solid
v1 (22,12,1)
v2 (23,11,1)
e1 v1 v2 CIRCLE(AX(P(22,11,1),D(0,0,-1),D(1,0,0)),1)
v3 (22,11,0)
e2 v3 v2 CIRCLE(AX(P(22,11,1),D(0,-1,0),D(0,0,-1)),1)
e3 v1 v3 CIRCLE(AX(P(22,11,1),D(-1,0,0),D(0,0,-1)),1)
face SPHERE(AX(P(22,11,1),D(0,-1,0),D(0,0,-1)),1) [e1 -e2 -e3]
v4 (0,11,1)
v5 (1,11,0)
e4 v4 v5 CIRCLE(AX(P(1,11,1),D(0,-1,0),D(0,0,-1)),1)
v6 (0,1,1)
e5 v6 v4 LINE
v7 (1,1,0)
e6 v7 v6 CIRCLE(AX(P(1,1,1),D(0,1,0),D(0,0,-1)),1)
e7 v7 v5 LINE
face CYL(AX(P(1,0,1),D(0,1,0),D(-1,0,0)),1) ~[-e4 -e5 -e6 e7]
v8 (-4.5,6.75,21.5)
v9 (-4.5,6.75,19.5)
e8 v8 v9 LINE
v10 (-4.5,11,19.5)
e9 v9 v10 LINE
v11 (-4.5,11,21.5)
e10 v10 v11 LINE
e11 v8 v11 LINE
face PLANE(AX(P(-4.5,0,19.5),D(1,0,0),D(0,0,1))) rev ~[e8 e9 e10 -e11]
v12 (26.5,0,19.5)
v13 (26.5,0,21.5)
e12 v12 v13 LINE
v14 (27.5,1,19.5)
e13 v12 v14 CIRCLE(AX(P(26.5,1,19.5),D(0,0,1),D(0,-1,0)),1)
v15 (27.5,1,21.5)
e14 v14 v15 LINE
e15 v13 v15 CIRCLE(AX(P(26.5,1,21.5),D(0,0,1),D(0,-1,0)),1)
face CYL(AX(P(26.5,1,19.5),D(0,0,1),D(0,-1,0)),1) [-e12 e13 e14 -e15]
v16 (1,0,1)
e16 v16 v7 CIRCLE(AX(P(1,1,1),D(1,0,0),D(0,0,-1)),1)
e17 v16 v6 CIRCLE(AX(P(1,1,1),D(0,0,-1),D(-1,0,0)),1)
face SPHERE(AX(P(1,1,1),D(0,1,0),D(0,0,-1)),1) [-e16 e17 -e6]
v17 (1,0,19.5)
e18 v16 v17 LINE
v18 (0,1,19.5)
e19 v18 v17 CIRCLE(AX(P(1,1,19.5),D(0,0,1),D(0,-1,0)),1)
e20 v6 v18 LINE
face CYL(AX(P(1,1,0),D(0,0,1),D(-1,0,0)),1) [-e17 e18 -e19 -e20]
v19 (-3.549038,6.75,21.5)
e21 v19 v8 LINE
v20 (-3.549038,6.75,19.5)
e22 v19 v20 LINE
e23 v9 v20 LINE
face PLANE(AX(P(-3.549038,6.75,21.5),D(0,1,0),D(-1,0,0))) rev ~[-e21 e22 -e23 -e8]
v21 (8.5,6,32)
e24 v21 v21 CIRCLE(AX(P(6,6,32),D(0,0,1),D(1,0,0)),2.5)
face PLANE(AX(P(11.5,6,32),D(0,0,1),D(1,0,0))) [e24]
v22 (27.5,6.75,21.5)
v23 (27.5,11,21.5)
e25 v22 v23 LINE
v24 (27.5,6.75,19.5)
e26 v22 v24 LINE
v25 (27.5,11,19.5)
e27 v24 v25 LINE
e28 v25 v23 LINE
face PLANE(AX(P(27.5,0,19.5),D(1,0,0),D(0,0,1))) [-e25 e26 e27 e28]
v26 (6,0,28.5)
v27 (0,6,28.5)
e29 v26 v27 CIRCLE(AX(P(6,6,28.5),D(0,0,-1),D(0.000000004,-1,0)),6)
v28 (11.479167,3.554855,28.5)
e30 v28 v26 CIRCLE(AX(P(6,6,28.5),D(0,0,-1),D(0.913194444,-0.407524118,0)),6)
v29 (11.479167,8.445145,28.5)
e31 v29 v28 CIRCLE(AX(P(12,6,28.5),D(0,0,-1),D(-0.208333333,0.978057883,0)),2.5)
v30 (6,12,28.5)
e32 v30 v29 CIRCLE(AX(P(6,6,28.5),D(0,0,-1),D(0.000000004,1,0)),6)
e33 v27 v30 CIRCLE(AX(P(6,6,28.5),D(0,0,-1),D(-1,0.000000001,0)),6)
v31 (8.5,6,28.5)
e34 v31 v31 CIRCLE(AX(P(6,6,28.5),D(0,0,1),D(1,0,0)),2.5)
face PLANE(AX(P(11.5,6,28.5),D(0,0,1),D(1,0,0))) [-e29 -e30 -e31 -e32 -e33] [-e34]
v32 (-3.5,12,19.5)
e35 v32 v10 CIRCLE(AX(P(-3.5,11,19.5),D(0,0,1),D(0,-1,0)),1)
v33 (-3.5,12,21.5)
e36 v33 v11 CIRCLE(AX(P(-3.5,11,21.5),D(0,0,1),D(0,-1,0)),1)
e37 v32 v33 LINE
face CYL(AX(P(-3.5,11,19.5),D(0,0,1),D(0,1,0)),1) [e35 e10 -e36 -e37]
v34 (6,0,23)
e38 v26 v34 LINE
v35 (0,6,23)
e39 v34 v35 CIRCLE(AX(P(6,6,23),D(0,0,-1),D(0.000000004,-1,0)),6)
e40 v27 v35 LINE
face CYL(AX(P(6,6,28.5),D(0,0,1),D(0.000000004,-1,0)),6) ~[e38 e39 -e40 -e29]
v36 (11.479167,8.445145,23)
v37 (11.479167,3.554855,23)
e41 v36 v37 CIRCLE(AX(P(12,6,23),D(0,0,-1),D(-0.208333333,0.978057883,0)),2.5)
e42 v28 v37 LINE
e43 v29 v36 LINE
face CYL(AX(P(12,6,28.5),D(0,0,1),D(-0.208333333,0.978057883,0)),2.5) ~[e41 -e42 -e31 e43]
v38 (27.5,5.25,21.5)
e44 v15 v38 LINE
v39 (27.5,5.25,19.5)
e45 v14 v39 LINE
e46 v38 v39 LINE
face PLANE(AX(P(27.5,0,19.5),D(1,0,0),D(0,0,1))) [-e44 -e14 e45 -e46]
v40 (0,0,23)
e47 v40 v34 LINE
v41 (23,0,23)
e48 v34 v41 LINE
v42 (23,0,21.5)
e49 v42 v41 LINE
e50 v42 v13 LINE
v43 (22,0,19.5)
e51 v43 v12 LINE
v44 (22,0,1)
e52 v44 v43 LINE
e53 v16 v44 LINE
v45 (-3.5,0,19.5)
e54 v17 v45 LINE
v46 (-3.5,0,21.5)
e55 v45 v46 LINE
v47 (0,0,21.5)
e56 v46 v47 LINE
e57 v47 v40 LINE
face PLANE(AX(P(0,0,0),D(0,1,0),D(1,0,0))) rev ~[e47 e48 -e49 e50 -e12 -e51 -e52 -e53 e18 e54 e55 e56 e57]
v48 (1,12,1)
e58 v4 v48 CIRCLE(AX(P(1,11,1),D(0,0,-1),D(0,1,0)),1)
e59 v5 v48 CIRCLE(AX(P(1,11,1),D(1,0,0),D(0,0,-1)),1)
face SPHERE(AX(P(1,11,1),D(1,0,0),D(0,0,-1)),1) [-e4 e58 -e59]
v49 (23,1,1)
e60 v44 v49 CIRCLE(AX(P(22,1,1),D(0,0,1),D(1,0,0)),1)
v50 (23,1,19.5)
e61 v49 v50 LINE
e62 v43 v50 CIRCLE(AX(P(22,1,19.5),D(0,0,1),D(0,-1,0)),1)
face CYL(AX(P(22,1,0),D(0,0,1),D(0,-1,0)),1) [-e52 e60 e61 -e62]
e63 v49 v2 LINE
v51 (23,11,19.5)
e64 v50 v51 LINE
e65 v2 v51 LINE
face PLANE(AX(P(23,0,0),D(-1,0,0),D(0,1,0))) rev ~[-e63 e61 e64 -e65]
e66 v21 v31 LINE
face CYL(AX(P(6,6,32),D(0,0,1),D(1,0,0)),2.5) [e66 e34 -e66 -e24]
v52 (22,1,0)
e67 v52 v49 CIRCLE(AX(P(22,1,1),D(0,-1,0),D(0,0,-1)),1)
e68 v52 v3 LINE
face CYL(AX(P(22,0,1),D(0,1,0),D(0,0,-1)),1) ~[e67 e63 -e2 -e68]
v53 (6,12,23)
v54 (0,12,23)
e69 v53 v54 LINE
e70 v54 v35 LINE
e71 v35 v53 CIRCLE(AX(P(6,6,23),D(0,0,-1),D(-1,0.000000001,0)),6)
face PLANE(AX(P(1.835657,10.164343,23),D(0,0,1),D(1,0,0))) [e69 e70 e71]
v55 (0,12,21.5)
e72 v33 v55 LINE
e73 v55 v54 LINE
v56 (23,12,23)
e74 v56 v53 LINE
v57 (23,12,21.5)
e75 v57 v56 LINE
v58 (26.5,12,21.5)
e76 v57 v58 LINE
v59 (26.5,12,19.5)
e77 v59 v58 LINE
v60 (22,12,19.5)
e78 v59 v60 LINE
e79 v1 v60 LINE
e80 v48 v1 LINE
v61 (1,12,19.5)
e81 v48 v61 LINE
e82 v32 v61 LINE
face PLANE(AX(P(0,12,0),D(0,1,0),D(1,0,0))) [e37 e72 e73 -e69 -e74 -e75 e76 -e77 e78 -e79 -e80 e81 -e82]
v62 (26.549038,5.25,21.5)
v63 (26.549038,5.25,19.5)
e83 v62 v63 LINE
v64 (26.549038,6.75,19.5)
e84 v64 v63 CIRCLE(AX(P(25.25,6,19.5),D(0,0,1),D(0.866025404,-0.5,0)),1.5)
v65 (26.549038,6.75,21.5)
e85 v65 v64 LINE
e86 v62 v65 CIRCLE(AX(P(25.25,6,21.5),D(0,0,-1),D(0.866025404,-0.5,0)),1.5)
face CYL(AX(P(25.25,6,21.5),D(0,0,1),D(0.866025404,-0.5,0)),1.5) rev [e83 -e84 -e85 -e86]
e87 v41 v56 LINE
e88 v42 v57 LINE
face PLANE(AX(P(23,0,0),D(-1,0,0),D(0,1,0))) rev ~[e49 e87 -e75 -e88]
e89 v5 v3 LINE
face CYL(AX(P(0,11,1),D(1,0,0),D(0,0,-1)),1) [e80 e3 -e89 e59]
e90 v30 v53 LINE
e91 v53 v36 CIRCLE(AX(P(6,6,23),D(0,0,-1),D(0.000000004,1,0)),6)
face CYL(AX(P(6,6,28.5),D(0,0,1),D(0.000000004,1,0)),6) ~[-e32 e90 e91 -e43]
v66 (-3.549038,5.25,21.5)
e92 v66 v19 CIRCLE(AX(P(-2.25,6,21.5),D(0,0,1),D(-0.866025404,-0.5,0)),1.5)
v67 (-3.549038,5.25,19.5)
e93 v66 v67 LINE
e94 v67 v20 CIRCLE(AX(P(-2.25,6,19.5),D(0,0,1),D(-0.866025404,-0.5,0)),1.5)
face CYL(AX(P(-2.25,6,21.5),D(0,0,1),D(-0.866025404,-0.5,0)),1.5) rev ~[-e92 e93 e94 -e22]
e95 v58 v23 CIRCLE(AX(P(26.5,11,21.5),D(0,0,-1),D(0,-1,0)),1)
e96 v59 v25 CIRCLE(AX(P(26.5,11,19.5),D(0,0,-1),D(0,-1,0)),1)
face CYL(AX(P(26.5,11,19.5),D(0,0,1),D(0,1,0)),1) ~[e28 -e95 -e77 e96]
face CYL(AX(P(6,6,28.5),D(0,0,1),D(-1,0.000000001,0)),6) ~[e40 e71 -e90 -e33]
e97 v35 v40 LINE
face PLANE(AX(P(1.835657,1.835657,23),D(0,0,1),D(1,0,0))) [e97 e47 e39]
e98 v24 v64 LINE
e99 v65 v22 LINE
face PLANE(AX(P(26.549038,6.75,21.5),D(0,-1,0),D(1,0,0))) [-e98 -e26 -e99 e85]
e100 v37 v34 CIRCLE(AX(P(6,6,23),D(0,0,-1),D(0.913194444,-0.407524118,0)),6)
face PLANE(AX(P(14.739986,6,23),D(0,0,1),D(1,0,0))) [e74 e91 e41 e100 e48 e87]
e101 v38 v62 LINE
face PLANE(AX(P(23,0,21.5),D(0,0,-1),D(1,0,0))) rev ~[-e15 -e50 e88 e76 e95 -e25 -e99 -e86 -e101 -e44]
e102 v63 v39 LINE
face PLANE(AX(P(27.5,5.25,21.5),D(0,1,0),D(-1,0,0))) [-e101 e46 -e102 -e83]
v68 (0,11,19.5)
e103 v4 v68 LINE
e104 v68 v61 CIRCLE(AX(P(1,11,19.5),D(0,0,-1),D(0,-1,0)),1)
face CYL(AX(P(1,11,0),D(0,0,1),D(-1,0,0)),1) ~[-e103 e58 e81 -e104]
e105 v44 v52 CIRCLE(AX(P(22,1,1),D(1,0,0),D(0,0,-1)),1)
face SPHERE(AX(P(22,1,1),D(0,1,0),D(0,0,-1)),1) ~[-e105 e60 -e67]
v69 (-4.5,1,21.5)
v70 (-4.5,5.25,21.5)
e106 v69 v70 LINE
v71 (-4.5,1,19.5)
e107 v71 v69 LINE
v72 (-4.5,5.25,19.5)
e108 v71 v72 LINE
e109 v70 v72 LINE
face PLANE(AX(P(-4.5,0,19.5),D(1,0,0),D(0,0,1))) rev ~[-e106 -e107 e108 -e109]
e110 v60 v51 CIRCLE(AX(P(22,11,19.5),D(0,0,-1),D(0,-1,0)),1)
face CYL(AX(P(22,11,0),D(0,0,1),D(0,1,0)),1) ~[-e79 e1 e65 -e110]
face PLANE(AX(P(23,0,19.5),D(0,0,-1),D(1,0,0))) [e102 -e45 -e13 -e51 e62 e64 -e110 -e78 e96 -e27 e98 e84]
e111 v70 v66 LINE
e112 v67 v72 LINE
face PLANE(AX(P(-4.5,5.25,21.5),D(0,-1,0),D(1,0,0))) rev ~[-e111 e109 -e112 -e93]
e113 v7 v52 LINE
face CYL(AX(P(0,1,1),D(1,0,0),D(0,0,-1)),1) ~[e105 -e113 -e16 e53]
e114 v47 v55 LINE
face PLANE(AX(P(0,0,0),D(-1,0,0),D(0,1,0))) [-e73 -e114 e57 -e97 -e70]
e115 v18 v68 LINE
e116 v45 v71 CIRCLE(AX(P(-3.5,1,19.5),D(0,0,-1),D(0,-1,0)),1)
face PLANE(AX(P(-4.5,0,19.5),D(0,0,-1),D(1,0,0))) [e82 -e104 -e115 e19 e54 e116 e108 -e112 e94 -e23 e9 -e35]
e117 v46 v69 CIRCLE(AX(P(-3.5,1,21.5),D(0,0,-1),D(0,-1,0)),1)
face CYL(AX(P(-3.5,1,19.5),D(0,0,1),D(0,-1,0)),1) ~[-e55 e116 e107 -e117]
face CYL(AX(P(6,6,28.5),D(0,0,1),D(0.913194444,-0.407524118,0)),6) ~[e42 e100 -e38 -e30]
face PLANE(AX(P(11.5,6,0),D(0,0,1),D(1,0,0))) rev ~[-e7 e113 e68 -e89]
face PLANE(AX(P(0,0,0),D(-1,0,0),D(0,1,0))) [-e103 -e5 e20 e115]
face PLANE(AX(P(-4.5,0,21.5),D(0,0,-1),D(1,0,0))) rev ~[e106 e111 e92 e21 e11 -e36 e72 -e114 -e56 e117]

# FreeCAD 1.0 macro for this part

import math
import FreeCAD as App
import Part
import Sketcher
Q = App.Units.Quantity


def edges_at(feature, points):
    """Names of the edges that pass closest to the given points."""
    edges = feature.Shape.Edges
    near = lambda p: min(range(len(edges)), key=lambda i: edges[i].distToShape(Part.Vertex(*p))[0])
    return sorted({f"Edge{near(p) + 1}" for p in points})


def add_polygon(sketch, points):
    """Adds a closed chain of lines whose ends are joined by coincident constraints."""
    first, n = sketch.GeometryCount, len(points)
    for a, b in zip(points, points[1:] + points[:1]):
        sketch.addGeometry(Part.LineSegment(App.Vector(*a, 0), App.Vector(*b, 0)), False)
    for i in range(n):
        sketch.addConstraint(Sketcher.Constraint("Coincident", first + i, 2, first + (i + 1) % n, 1))

doc = App.newDocument("Part")
body = doc.addObject("PartDesign::Body", "Body")

# Sketch on XY plane
sketch1 = body.newObject("Sketcher::SketchObject", "Sketch")
sketch1.AttachmentSupport = (doc.getObject("XY_Plane"), [""])
sketch1.MapMode = "FlatFace"
add_polygon(sketch1, [(0, 12), (0, 0), (23, 0), (23, 12)])  # lines 0-3
sketch1.addConstraint(Sketcher.Constraint("Vertical", 0))
sketch1.addConstraint(Sketcher.Constraint("Horizontal", 1))
sketch1.addConstraint(Sketcher.Constraint("Vertical", 2))
sketch1.addConstraint(Sketcher.Constraint("Horizontal", 3))
sketch1.addConstraint(Sketcher.Constraint("Coincident", 0, 2, -1, 1))
sketch1.addConstraint(Sketcher.Constraint("DistanceX", 1, 1, 1, 2, Q("23 mm")))
sketch1.addConstraint(Sketcher.Constraint("DistanceY", 0, 2, 0, 1, Q("12 mm")))
pad1 = body.newObject("PartDesign::Pad", "Pad")
pad1.Profile = sketch1
pad1.Length = 32

# Sketch on XZ plane
sketch2 = body.newObject("Sketcher::SketchObject", "Sketch001")
sketch2.AttachmentSupport = (doc.getObject("XZ_Plane"), [""])
sketch2.MapMode = "FlatFace"
add_polygon(sketch2, [(-4.5, 21.5), (-4.5, 19.5), (0, 19.5), (0, 21.5)])  # lines 0-3
add_polygon(sketch2, [(23, 21.5), (23, 19.5), (27.5, 19.5), (27.5, 21.5)])  # lines 4-7
sketch2.addConstraint(Sketcher.Constraint("Vertical", 0))
sketch2.addConstraint(Sketcher.Constraint("Horizontal", 1))
sketch2.addConstraint(Sketcher.Constraint("Vertical", 2))
sketch2.addConstraint(Sketcher.Constraint("Horizontal", 3))
sketch2.addConstraint(Sketcher.Constraint("Vertical", 4))
sketch2.addConstraint(Sketcher.Constraint("Horizontal", 5))
sketch2.addConstraint(Sketcher.Constraint("Vertical", 6))
sketch2.addConstraint(Sketcher.Constraint("Horizontal", 7))
sketch2.addConstraint(Sketcher.Constraint("PointOnObject", 1, 2, -2))
sketch2.addConstraint(Sketcher.Constraint("Horizontal", 1, 2, 4, 2))
sketch2.addConstraint(Sketcher.Constraint("Horizontal", 3, 2, 6, 2))
sketch2.addConstraint(Sketcher.Constraint("Equal", 3, 5))
sketch2.addConstraint(Sketcher.Constraint("DistanceY", 0, 2, 0, 1, Q("2 mm")))
sketch2.addConstraint(Sketcher.Constraint("DistanceX", 1, 1, 1, 2, Q("4.5 mm")))
sketch2.addConstraint(Sketcher.Constraint("DistanceX", -1, 1, 4, 2, Q("23 mm")))
sketch2.addConstraint(Sketcher.Constraint("DistanceY", -1, 1, 0, 2, Q("19.5 mm")))
pad2 = body.newObject("PartDesign::Pad", "Pad001")
pad2.Profile = sketch2
pad2.Length = 12
pad2.Reversed = True

# Sketch on XY plane
sketch3 = body.newObject("Sketcher::SketchObject", "Sketch002")
sketch3.AttachmentSupport = (doc.getObject("XY_Plane"), [""])
sketch3.MapMode = "FlatFace"
sketch3.AttachmentOffset = App.Placement(App.Vector(0, 0, 21.5), App.Rotation())
sketch3.addGeometry(Part.LineSegment(App.Vector(-3.549038, 6.75, 0), App.Vector(-4.5, 6.75, 0)), False)
sketch3.addGeometry(Part.LineSegment(App.Vector(-4.5, 6.75, 0), App.Vector(-4.5, 5.25, 0)), False)
sketch3.addGeometry(Part.LineSegment(App.Vector(-4.5, 5.25, 0), App.Vector(-3.549038, 5.25, 0)), False)
sketch3.addGeometry(Part.ArcOfCircle(Part.Circle(App.Vector(-2.25, 6, 0), App.Vector(0, 0, 1), 1.5), math.radians(-150), math.radians(150)), False)
sketch3.addGeometry(Part.LineSegment(App.Vector(27.5, 6.75, 0), App.Vector(26.549038, 6.75, 0)), False)
sketch3.addGeometry(Part.ArcOfCircle(Part.Circle(App.Vector(25.25, 6, 0), App.Vector(0, 0, 1), 1.5), math.radians(30), math.radians(330)), False)
sketch3.addGeometry(Part.LineSegment(App.Vector(26.549038, 5.25, 0), App.Vector(27.5, 5.25, 0)), False)
sketch3.addGeometry(Part.LineSegment(App.Vector(27.5, 5.25, 0), App.Vector(27.5, 6.75, 0)), False)
sketch3.addConstraint(Sketcher.Constraint("Coincident", 0, 2, 1, 1))
sketch3.addConstraint(Sketcher.Constraint("Coincident", 1, 2, 2, 1))
sketch3.addConstraint(Sketcher.Constraint("Coincident", 2, 2, 3, 1))
sketch3.addConstraint(Sketcher.Constraint("Coincident", 3, 2, 0, 1))
sketch3.addConstraint(Sketcher.Constraint("Coincident", 4, 2, 5, 1))
sketch3.addConstraint(Sketcher.Constraint("Coincident", 5, 2, 6, 1))
sketch3.addConstraint(Sketcher.Constraint("Coincident", 6, 2, 7, 1))
sketch3.addConstraint(Sketcher.Constraint("Coincident", 7, 2, 4, 1))
sketch3.addConstraint(Sketcher.Constraint("Horizontal", 0))
sketch3.addConstraint(Sketcher.Constraint("Vertical", 1))
sketch3.addConstraint(Sketcher.Constraint("Horizontal", 2))
sketch3.addConstraint(Sketcher.Constraint("Horizontal", 4))
sketch3.addConstraint(Sketcher.Constraint("Horizontal", 6))
sketch3.addConstraint(Sketcher.Constraint("Vertical", 7))
sketch3.addConstraint(Sketcher.Constraint("Equal", 3, 5))
sketch3.addConstraint(Sketcher.Constraint("Horizontal", 3, 3, 5, 3))
sketch3.addConstraint(Sketcher.Constraint("Horizontal", 3, 2, 4, 2))
sketch3.addConstraint(Sketcher.Constraint("Horizontal", 2, 2, 5, 2))
sketch3.addConstraint(Sketcher.Constraint("Vertical", 2, 2, 3, 2))
sketch3.addConstraint(Sketcher.Constraint("Equal", 2, 4))
sketch3.addConstraint(Sketcher.Constraint("Radius", 3, Q("1.5 mm")))
sketch3.addConstraint(Sketcher.Constraint("DistanceY", 1, 2, 1, 1, Q("1.5 mm")))
sketch3.addConstraint(Sketcher.Constraint("DistanceY", -1, 1, 3, 3, Q("6 mm")))
sketch3.addConstraint(Sketcher.Constraint("DistanceX", 0, 2, -1, 1, Q("4.5 mm")))
sketch3.addConstraint(Sketcher.Constraint("DistanceX", -1, 1, 6, 2, Q("27.5 mm")))
sketch3.addConstraint(Sketcher.Constraint("DistanceX", 3, 3, 5, 3, Q("27.5 mm")))
pocket1 = body.newObject("PartDesign::Pocket", "Pocket")
pocket1.Profile = sketch3
pocket1.Type = "ThroughAll"

# Sketch on XY plane
sketch4 = body.newObject("Sketcher::SketchObject", "Sketch003")
sketch4.AttachmentSupport = (doc.getObject("XY_Plane"), [""])
sketch4.MapMode = "FlatFace"
sketch4.AttachmentOffset = App.Placement(App.Vector(0, 0, 32), App.Rotation())
add_polygon(sketch4, [(0, 12), (0, 0), (23, 0), (23, 12)])  # lines 0-3
sketch4.addGeometry(Part.Circle(App.Vector(6, 6, 0), App.Vector(0, 0, 1), 2.5), False)  # 4
sketch4.addConstraint(Sketcher.Constraint("Vertical", 0))
sketch4.addConstraint(Sketcher.Constraint("Horizontal", 1))
sketch4.addConstraint(Sketcher.Constraint("Vertical", 2))
sketch4.addConstraint(Sketcher.Constraint("Horizontal", 3))
sketch4.addConstraint(Sketcher.Constraint("Coincident", 0, 2, -1, 1))
sketch4.addConstraint(Sketcher.Constraint("Diameter", 4, Q("5 mm")))
sketch4.addConstraint(Sketcher.Constraint("DistanceX", 1, 1, 1, 2, Q("23 mm")))
sketch4.addConstraint(Sketcher.Constraint("DistanceY", 0, 2, 0, 1, Q("12 mm")))
sketch4.addConstraint(Sketcher.Constraint("DistanceX", -1, 1, 4, 3, Q("6 mm")))
sketch4.addConstraint(Sketcher.Constraint("DistanceY", -1, 1, 4, 3, Q("6 mm")))
pocket2 = body.newObject("PartDesign::Pocket", "Pocket001")
pocket2.Profile = sketch4
pocket2.Length = 3.5

# Sketch on XY plane
sketch5 = body.newObject("Sketcher::SketchObject", "Sketch004")
sketch5.AttachmentSupport = (doc.getObject("XY_Plane"), [""])
sketch5.MapMode = "FlatFace"
sketch5.AttachmentOffset = App.Placement(App.Vector(0, 0, 28.5), App.Rotation())
sketch5.addGeometry(Part.ArcOfCircle(Part.Circle(App.Vector(6, 6, 0), App.Vector(0, 0, 1), 6), math.radians(-90), math.radians(-24.049398)), False)
sketch5.addGeometry(Part.LineSegment(App.Vector(6, 0, 0), App.Vector(23, 0, 0)), False)
sketch5.addGeometry(Part.LineSegment(App.Vector(23, 0, 0), App.Vector(23, 12, 0)), False)
sketch5.addGeometry(Part.LineSegment(App.Vector(23, 12, 0), App.Vector(6, 12, 0)), False)
sketch5.addGeometry(Part.ArcOfCircle(Part.Circle(App.Vector(6, 6, 0), App.Vector(0, 0, 1), 6), math.radians(24.049398), math.radians(90)), False)
sketch5.addGeometry(Part.ArcOfCircle(Part.Circle(App.Vector(12, 6, 0), App.Vector(0, 0, 1), 2.5), math.radians(-102.024699), math.radians(102.024699)), False)
sketch5.addGeometry(Part.LineSegment(App.Vector(0, 12, 0), App.Vector(0, 6, 0)), False)
sketch5.addGeometry(Part.ArcOfCircle(Part.Circle(App.Vector(6, 6, 0), App.Vector(0, 0, 1), 6), math.radians(90), math.radians(180)), False)
sketch5.addGeometry(Part.LineSegment(App.Vector(6, 12, 0), App.Vector(0, 12, 0)), False)
sketch5.addGeometry(Part.LineSegment(App.Vector(0, 6, 0), App.Vector(0, 0, 0)), False)
sketch5.addGeometry(Part.LineSegment(App.Vector(0, 0, 0), App.Vector(6, 0, 0)), False)
sketch5.addGeometry(Part.ArcOfCircle(Part.Circle(App.Vector(6, 6, 0), App.Vector(0, 0, 1), 6), math.radians(180), math.radians(270)), False)
sketch5.addConstraint(Sketcher.Constraint("Tangent", 0, 1, 1, 1))
sketch5.addConstraint(Sketcher.Constraint("Coincident", 1, 2, 2, 1))
sketch5.addConstraint(Sketcher.Constraint("Coincident", 2, 2, 3, 1))
sketch5.addConstraint(Sketcher.Constraint("Tangent", 3, 2, 4, 2))
sketch5.addConstraint(Sketcher.Constraint("Coincident", 4, 1, 5, 2))
sketch5.addConstraint(Sketcher.Constraint("Coincident", 5, 1, 0, 2))
sketch5.addConstraint(Sketcher.Constraint("Tangent", 6, 2, 7, 2))
sketch5.addConstraint(Sketcher.Constraint("Tangent", 7, 1, 8, 1))
sketch5.addConstraint(Sketcher.Constraint("Coincident", 8, 2, 6, 1))
sketch5.addConstraint(Sketcher.Constraint("Coincident", 9, 2, 10, 1))
sketch5.addConstraint(Sketcher.Constraint("Tangent", 10, 2, 11, 2))
sketch5.addConstraint(Sketcher.Constraint("Tangent", 11, 1, 9, 1))
sketch5.addConstraint(Sketcher.Constraint("Horizontal", 1))
sketch5.addConstraint(Sketcher.Constraint("Vertical", 2))
sketch5.addConstraint(Sketcher.Constraint("Horizontal", 3))
sketch5.addConstraint(Sketcher.Constraint("Vertical", 6))
sketch5.addConstraint(Sketcher.Constraint("Horizontal", 8))
sketch5.addConstraint(Sketcher.Constraint("Vertical", 9))
sketch5.addConstraint(Sketcher.Constraint("Horizontal", 10))
sketch5.addConstraint(Sketcher.Constraint("Coincident", 9, 2, -1, 1))
sketch5.addConstraint(Sketcher.Constraint("Coincident", 4, 3, 0, 3))
sketch5.addConstraint(Sketcher.Constraint("Coincident", 7, 3, 0, 3))
sketch5.addConstraint(Sketcher.Constraint("Coincident", 11, 3, 0, 3))
sketch5.addConstraint(Sketcher.Constraint("Equal", 0, 4))
sketch5.addConstraint(Sketcher.Constraint("Equal", 4, 7))
sketch5.addConstraint(Sketcher.Constraint("Equal", 7, 11))
sketch5.addConstraint(Sketcher.Constraint("Horizontal", 4, 3, 5, 3))
sketch5.addConstraint(Sketcher.Constraint("Radius", 0, Q("6 mm")))
sketch5.addConstraint(Sketcher.Constraint("Radius", 5, Q("2.5 mm")))
sketch5.addConstraint(Sketcher.Constraint("DistanceX", 1, 1, 1, 2, Q("17 mm")))
sketch5.addConstraint(Sketcher.Constraint("DistanceX", -1, 1, 5, 3, Q("12 mm")))
pocket3 = body.newObject("PartDesign::Pocket", "Pocket002")
pocket3.Profile = sketch5
pocket3.Length = 5.5
doc.recompute()

fillet = body.newObject("PartDesign::Fillet", "Fillet")
fillet.Base = (pocket3, edges_at(pocket3, [
    (23, 6, 0),
    (11.5, 12, 0),
    (0, 6, 0),
    (11.5, 0, 0),
    (27.5, 0, 20.5),
    (27.5, 12, 20.5),
    (-4.5, 12, 20.5),
    (-4.5, 0, 20.5),
    (0, 0, 9.75),
    (23, 0, 9.75),
    (23, 12, 9.75),
    (0, 12, 9.75),
]))
fillet.Radius = 1

doc.recompute()
